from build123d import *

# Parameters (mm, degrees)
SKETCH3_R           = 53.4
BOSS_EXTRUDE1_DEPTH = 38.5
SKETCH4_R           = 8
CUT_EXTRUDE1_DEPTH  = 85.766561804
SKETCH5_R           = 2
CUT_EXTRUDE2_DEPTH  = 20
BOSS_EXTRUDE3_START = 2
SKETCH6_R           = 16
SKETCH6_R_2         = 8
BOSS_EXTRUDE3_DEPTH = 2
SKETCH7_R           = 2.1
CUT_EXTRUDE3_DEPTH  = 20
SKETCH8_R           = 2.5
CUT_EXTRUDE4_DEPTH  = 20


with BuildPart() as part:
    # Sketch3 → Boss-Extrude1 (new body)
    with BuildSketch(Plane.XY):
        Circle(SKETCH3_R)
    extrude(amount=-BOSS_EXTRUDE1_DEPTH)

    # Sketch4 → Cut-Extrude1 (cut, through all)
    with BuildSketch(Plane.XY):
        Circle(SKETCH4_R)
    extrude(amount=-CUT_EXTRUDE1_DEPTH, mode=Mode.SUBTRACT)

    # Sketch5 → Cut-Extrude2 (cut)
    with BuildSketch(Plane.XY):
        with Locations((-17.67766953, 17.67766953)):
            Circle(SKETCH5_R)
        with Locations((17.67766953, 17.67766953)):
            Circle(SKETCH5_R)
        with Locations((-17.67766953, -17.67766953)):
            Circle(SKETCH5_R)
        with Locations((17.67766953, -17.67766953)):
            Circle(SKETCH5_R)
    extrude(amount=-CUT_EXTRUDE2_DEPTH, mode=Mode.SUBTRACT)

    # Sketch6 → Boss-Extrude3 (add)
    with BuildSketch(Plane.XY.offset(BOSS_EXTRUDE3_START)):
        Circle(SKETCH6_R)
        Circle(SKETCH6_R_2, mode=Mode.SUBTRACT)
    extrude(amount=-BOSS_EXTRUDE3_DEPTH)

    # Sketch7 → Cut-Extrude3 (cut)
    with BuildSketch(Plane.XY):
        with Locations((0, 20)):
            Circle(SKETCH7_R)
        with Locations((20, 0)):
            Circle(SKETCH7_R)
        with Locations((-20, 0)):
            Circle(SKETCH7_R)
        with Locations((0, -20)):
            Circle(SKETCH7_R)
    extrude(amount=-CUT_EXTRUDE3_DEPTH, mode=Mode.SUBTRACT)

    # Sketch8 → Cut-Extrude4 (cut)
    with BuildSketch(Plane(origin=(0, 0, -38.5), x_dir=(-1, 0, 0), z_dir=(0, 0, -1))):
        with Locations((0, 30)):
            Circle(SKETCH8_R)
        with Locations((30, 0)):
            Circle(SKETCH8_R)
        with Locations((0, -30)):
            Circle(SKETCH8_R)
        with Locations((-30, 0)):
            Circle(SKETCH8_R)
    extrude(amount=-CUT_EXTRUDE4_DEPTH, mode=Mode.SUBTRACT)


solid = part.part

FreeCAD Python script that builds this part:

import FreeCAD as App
import Part
import Sketcher

V = App.Vector

doc = App.newDocument("Part")
body = doc.addObject("PartDesign::Body", "Body")

# Sketch on XY plane
sketch1 = doc.addObject("Sketcher::SketchObject", "Sketch")
body.addObject(sketch1)
sketch1.AttachmentSupport = (doc.XY_Plane, [""])
sketch1.MapMode = "FlatFace"
sketch1.addGeometry(Part.Circle(V(0, 0, 0), V(0, 0, 1), 53), False)
sketch1.addConstraint([
    Sketcher.Constraint("Coincident", 0, 3, -1, 1),
    Sketcher.Constraint("Diameter", 0, 106.8),
])
pad1 = doc.addObject("PartDesign::Pad", "Pad")
body.addObject(pad1)
pad1.Profile = sketch1
pad1.Length = 38.5
pad1.Reversed = True

# Sketch on XY plane
sketch2 = doc.addObject("Sketcher::SketchObject", "Sketch001")
body.addObject(sketch2)
sketch2.AttachmentSupport = (doc.XY_Plane, [""])
sketch2.MapMode = "FlatFace"
sketch2.addGeometry(Part.Circle(V(0, 0, 0), V(0, 0, 1), 8), False)
sketch2.addConstraint([
    Sketcher.Constraint("Coincident", 0, 3, -1, 1),
    Sketcher.Constraint("Diameter", 0, 16.0),
])
pocket1 = doc.addObject("PartDesign::Pocket", "Pocket")
body.addObject(pocket1)
pocket1.Profile = sketch2
pocket1.Type = "ThroughAll"

# Sketch on XY plane
sketch3 = doc.addObject("Sketcher::SketchObject", "Sketch002")
body.addObject(sketch3)
sketch3.AttachmentSupport = (doc.XY_Plane, [""])
sketch3.MapMode = "FlatFace"
sketch3.addGeometry([
    Part.Circle(V(-17.7, 17.7, 0), V(0, 0, 1), 2),
    Part.Circle(V(17.7, 17.7, 0), V(0, 0, 1), 2),
    Part.Circle(V(-17.7, -17.7, 0), V(0, 0, 1), 2),
    Part.Circle(V(17.7, -17.7, 0), V(0, 0, 1), 2),
], False)
sketch3.addConstraint([
    Sketcher.Constraint("Equal", 0, 1),
    Sketcher.Constraint("Equal", 1, 2),
    Sketcher.Constraint("Equal", 2, 3),
    Sketcher.Constraint("Symmetric", 1, 3, 2, 3, -1, 1),
    Sketcher.Constraint("Symmetric", 0, 3, 3, 3, -1, 1),
    Sketcher.Constraint("Symmetric", 0, 3, 1, 3, -2),
    Sketcher.Constraint("Diameter", 0, 4.0),
    Sketcher.Constraint("DistanceX", 0, 3, -1, 1, 17.67767),
    Sketcher.Constraint("DistanceY", -1, 1, 0, 3, 17.67767),
])
pocket2 = doc.addObject("PartDesign::Pocket", "Pocket001")
body.addObject(pocket2)
pocket2.Profile = sketch3
pocket2.Length = 20

# Sketch on XY plane
sketch4 = doc.addObject("Sketcher::SketchObject", "Sketch003")
body.addObject(sketch4)
sketch4.AttachmentSupport = (doc.XY_Plane, [""])
sketch4.MapMode = "FlatFace"
sketch4.AttachmentOffset = App.Placement(V(0, 0, 2), App.Rotation())
sketch4.addGeometry([
    Part.Circle(V(0, 0, 0), V(0, 0, 1), 16),
    Part.Circle(V(0, 0, 0), V(0, 0, 1), 8),
], False)
sketch4.addConstraint([
    Sketcher.Constraint("Coincident", 0, 3, -1, 1),
    Sketcher.Constraint("Coincident", 1, 3, -1, 1),
    Sketcher.Constraint("Diameter", 0, 32.0),
    Sketcher.Constraint("Diameter", 1, 16.0),
])
pad2 = doc.addObject("PartDesign::Pad", "Pad001")
body.addObject(pad2)
pad2.Profile = sketch4
pad2.Length = 2
pad2.Reversed = True

# Sketch on XY plane
sketch5 = doc.addObject("Sketcher::SketchObject", "Sketch004")
body.addObject(sketch5)
sketch5.AttachmentSupport = (doc.XY_Plane, [""])
sketch5.MapMode = "FlatFace"
sketch5.addGeometry([
    Part.Circle(V(0, 20, 0), V(0, 0, 1), 2.1),
    Part.Circle(V(20, 0, 0), V(0, 0, 1), 2.1),
    Part.Circle(V(-20, 0, 0), V(0, 0, 1), 2.1),
    Part.Circle(V(0, -20, 0), V(0, 0, 1), 2.1),
], False)
sketch5.addConstraint([
    Sketcher.Constraint("Equal", 0, 1),
    Sketcher.Constraint("Equal", 1, 2),
    Sketcher.Constraint("Equal", 2, 3),
    Sketcher.Constraint("Symmetric", 1, 3, 2, 3, -1, 1),
    Sketcher.Constraint("Symmetric", 0, 3, 3, 3, -1, 1),
    Sketcher.Constraint("PointOnObject", 0, 3, -2),
    Sketcher.Constraint("PointOnObject", 1, 3, -1),
    Sketcher.Constraint("Diameter", 0, 4.2),
    Sketcher.Constraint("DistanceY", -1, 1, 0, 3, 20.0),
    Sketcher.Constraint("DistanceX", -1, 1, 1, 3, 20.0),
])
pocket3 = doc.addObject("PartDesign::Pocket", "Pocket002")
body.addObject(pocket3)
pocket3.Profile = sketch5
pocket3.Length = 20

# Sketch on XY plane
sketch6 = doc.addObject("Sketcher::SketchObject", "Sketch005")
body.addObject(sketch6)
sketch6.AttachmentSupport = (doc.XY_Plane, [""])
sketch6.MapMode = "FlatFace"
sketch6.AttachmentOffset = App.Placement(V(0, 0, -38.5), App.Rotation())
sketch6.addGeometry([
    Part.Circle(V(0, 30, 0), V(0, 0, 1), 2.5),
    Part.Circle(V(-30, 0, 0), V(0, 0, 1), 2.5),
    Part.Circle(V(0, -30, 0), V(0, 0, 1), 2.5),
    Part.Circle(V(30, 0, 0), V(0, 0, 1), 2.5),
], False)
sketch6.addConstraint([
    Sketcher.Constraint("Equal", 0, 1),
    Sketcher.Constraint("Equal", 1, 2),
    Sketcher.Constraint("Equal", 2, 3),
    Sketcher.Constraint("Symmetric", 0, 3, 2, 3, -1, 1),
    Sketcher.Constraint("Symmetric", 1, 3, 3, 3, -1, 1),
    Sketcher.Constraint("PointOnObject", 0, 3, -2),
    Sketcher.Constraint("PointOnObject", 1, 3, -1),
    Sketcher.Constraint("Diameter", 0, 5.0),
    Sketcher.Constraint("DistanceY", -1, 1, 0, 3, 30.0),
    Sketcher.Constraint("DistanceX", 1, 3, -1, 1, 30.0),
])
pocket4 = doc.addObject("PartDesign::Pocket", "Pocket003")
body.addObject(pocket4)
pocket4.Profile = sketch6
pocket4.Length = 20
pocket4.Reversed = True

doc.recompute()
